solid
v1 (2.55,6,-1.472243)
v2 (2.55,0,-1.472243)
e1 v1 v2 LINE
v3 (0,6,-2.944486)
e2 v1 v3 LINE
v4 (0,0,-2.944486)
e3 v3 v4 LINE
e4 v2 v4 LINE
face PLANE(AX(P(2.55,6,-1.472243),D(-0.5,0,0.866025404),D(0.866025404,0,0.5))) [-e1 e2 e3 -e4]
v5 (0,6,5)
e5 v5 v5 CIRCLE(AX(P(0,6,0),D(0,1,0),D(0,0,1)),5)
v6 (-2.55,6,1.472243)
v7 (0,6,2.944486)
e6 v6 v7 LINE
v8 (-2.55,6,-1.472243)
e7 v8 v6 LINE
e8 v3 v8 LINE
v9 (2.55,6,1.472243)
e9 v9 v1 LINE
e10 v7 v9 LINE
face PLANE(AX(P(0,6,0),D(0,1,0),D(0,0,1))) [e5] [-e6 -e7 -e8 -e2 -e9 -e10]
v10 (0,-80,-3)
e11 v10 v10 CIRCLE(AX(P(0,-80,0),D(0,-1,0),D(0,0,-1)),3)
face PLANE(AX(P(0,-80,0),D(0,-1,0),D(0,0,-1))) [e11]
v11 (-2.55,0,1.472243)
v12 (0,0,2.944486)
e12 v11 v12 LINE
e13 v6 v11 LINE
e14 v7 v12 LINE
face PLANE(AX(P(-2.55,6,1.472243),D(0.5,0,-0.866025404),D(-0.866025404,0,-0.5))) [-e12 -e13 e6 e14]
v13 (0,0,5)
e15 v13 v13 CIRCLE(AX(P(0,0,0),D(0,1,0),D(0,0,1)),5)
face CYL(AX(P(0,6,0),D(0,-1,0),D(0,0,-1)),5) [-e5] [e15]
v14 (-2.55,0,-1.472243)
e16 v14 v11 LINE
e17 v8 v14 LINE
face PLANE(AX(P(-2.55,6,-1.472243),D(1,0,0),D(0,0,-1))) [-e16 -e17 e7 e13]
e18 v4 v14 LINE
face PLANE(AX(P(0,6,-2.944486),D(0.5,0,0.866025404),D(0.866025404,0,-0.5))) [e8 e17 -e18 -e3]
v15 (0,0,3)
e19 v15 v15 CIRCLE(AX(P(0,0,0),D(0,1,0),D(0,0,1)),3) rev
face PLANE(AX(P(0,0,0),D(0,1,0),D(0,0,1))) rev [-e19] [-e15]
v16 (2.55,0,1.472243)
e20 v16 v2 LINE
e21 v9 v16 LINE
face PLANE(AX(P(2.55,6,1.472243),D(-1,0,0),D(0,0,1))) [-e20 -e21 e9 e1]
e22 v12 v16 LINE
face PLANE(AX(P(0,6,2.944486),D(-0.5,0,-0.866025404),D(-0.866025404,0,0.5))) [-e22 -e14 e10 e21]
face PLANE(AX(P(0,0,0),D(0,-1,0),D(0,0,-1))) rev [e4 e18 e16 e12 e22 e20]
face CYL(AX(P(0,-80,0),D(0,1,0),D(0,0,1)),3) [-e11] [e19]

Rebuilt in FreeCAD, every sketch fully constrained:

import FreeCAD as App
import Part
import Sketcher

V = App.Vector
Q = App.Units.Quantity

doc = App.newDocument("Part")
body = doc.addObject("PartDesign::Body", "Body")

sketch1 = body.newObject("Sketcher::SketchObject", "Sketch")
sketch1.AttachmentSupport = (doc.getObject("XZ_Plane"), [""])
sketch1.MapMode = "FlatFace"
sketch1.addGeometry(Part.Circle(V(0, 0, 0), V(0, 0, 1), 5), False)
sketch1.addGeometry(Part.LineSegment(V(2.5, 1.5, 0), V(0, 2.9, 0)), False)
sketch1.addGeometry(Part.LineSegment(V(0, 2.9, 0), V(-2.5, 1.5, 0)), False)
sketch1.addGeometry(Part.LineSegment(V(-2.5, 1.5, 0), V(-2.5, -1.5, 0)), False)
sketch1.addGeometry(Part.LineSegment(V(-2.5, -1.5, 0), V(0, -2.9, 0)), False)
sketch1.addGeometry(Part.LineSegment(V(0, -2.9, 0), V(2.5, -1.5, 0)), False)
sketch1.addGeometry(Part.LineSegment(V(2.5, -1.5, 0), V(2.5, 1.5, 0)), False)
sketch1.addConstraint(Sketcher.Constraint("Coincident", 1, 2, 2, 1))
sketch1.addConstraint(Sketcher.Constraint("Coincident", 2, 2, 3, 1))
sketch1.addConstraint(Sketcher.Constraint("Coincident", 3, 2, 4, 1))
sketch1.addConstraint(Sketcher.Constraint("Coincident", 4, 2, 5, 1))
sketch1.addConstraint(Sketcher.Constraint("Coincident", 5, 2, 6, 1))
sketch1.addConstraint(Sketcher.Constraint("Coincident", 6, 2, 1, 1))
sketch1.addConstraint(Sketcher.Constraint("Vertical", 3))
sketch1.addConstraint(Sketcher.Constraint("Vertical", 6))
sketch1.addConstraint(Sketcher.Constraint("Coincident", 0, 3, -1, 1))
sketch1.addConstraint(Sketcher.Constraint("Symmetric", 1, 2, 4, 2, -1, 1))
sketch1.addConstraint(Sketcher.Constraint("Symmetric", 2, 2, 5, 2, -1, 1))
sketch1.addConstraint(Sketcher.Constraint("PointOnObject", 1, 2, -2))
sketch1.addConstraint(Sketcher.Constraint("Parallel", 1, 4))
sketch1.addConstraint(Sketcher.Constraint("Horizontal", 3, 2, 5, 2))
sketch1.addConstraint(Sketcher.Constraint("Diameter", 0, Q("10 mm")))
sketch1.addConstraint(Sketcher.Constraint("Angle", 1, Q("150 deg")))
sketch1.addConstraint(Sketcher.Constraint("DistanceX", 3, 2, 5, 2, Q("5.1 mm")))
sketch1.addConstraint(Sketcher.Constraint("DistanceY", 3, 2, 3, 1, Q("2.944486 mm")))
pad1 = body.newObject("PartDesign::Pad", "Pad")
pad1.Profile = sketch1
pad1.Length = 6
pad1.Reversed = True

sketch2 = body.newObject("Sketcher::SketchObject", "Sketch001")
sketch2.AttachmentSupport = (doc.getObject("XZ_Plane"), [""])
sketch2.MapMode = "FlatFace"
sketch2.addGeometry(Part.Circle(V(0, 0, 0), V(0, 0, 1), 3), False)
sketch2.addConstraint(Sketcher.Constraint("Coincident", 0, 3, -1, 1))
sketch2.addConstraint(Sketcher.Constraint("Diameter", 0, Q("6 mm")))
pad2 = body.newObject("PartDesign::Pad", "Pad001")
pad2.Profile = sketch2
pad2.Length = 80

doc.recompute()
